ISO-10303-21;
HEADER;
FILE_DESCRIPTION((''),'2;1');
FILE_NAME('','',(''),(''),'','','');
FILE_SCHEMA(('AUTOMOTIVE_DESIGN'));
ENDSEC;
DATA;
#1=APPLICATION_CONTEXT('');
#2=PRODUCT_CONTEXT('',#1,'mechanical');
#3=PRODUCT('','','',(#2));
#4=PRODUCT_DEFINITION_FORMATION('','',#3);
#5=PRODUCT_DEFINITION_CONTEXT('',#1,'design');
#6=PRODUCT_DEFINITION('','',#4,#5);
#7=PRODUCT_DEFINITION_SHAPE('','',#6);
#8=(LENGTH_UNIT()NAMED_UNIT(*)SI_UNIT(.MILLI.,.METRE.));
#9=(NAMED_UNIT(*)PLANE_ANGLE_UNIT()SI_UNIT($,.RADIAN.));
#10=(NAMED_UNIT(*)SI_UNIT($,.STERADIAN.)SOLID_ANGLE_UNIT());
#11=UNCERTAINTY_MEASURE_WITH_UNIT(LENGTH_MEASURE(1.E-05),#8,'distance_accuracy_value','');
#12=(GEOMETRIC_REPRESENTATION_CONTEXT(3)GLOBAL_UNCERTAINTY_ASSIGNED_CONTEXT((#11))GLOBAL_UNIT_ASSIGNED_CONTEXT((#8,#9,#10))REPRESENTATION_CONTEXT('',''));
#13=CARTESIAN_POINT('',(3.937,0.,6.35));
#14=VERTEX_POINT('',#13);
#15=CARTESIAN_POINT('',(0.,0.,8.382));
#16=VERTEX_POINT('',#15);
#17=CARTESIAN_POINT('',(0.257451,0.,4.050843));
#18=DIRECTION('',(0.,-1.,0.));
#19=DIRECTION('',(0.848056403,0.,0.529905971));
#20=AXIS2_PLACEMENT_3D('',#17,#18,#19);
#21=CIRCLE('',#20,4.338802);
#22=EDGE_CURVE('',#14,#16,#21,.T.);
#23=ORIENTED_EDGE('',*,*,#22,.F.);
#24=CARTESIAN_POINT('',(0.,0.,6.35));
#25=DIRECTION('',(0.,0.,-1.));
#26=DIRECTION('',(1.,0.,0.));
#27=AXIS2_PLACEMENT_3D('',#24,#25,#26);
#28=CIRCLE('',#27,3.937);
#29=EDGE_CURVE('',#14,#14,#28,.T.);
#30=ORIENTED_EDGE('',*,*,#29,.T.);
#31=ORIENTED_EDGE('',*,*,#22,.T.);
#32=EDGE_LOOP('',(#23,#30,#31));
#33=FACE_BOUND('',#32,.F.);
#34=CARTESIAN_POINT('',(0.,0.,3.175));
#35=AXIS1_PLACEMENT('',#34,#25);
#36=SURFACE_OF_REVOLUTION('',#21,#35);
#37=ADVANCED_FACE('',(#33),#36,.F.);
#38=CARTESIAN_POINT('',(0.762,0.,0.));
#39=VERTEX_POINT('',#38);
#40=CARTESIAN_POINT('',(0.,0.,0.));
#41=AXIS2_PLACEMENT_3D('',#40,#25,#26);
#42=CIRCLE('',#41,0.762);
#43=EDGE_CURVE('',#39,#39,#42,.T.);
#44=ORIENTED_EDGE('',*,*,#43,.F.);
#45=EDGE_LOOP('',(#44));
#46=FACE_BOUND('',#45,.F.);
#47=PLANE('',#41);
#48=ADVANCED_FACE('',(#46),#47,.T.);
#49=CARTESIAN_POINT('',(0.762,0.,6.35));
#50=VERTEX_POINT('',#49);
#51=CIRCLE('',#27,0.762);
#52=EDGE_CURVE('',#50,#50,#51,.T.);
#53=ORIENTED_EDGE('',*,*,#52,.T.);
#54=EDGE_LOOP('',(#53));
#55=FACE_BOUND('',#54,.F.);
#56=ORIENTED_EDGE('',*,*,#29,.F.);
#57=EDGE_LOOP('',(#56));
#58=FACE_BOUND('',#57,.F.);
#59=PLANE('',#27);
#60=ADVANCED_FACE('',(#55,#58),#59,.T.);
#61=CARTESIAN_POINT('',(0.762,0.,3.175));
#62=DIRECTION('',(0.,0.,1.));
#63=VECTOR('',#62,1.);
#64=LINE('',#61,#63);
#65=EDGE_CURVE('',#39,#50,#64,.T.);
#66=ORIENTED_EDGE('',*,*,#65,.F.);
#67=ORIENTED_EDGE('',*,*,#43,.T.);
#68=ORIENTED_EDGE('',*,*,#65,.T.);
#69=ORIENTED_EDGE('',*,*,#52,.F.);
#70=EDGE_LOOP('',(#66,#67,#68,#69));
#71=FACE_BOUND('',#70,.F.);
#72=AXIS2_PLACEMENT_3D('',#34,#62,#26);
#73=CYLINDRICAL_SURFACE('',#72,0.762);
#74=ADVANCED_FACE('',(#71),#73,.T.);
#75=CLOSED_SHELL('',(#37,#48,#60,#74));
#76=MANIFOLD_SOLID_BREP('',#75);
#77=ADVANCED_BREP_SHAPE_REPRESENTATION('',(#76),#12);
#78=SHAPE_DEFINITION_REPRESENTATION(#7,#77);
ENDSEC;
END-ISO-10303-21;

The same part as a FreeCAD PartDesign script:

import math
import FreeCAD as App
import Part
import Sketcher
from FreeCAD import Vector
Q = App.Units.Quantity

doc = App.newDocument("Part")
params = doc.addObject("Spreadsheet::Sheet", "Params")
for row, (alias, value) in enumerate([
    ("sketch1_width", "0.03 in"),
    ("sketch1_height", "0.25 in"),
    ("sketch1_height2", "0.33 in"),
    ("sketch1_width2", "0.125 in"),
    ("revolution_angle", "360 deg"),
], start=1):
    params.set(f"A{row}", alias)
    params.set(f"B{row}", "=" + value)
    params.setAlias(f"B{row}", alias)

body = doc.addObject("PartDesign::Body", "Body")

# Sketch on XZ plane
sketch1 = doc.addObject("Sketcher::SketchObject", "Sketch")
body.addObject(sketch1)
sketch1.AttachmentSupport = (doc.XZ_Plane, [""])
sketch1.MapMode = "FlatFace"
sketch1.addGeometry(Part.LineSegment(Vector(0, 0, 0), Vector(0.8, 0, 0)), False)
sketch1.addGeometry(Part.LineSegment(Vector(0.8, 0, 0), Vector(0.8, 6.3, 0)), False)
sketch1.addGeometry(Part.LineSegment(Vector(0.8, 6.3, 0), Vector(3.9, 6.3, 0)), False)
sketch1.addGeometry(Part.ArcOfCircle(Part.Circle(Vector(0.3, 4.1, 0), Vector(0, 0, 1), 4.3), math.radians(32), math.radians(93)), False)
sketch1.addGeometry(Part.LineSegment(Vector(0, 8.4, 0), Vector(0, 0, 0)), False)
sketch1.addConstraint(Sketcher.Constraint("Coincident", 0, 2, 1, 1))
sketch1.addConstraint(Sketcher.Constraint("Coincident", 1, 2, 2, 1))
sketch1.addConstraint(Sketcher.Constraint("Coincident", 2, 2, 3, 1))
sketch1.addConstraint(Sketcher.Constraint("Coincident", 3, 2, 4, 1))
sketch1.addConstraint(Sketcher.Constraint("Coincident", 4, 2, 0, 1))
sketch1.addConstraint(Sketcher.Constraint("Horizontal", 0))
sketch1.addConstraint(Sketcher.Constraint("Vertical", 1))
sketch1.addConstraint(Sketcher.Constraint("Horizontal", 2))
sketch1.addConstraint(Sketcher.Constraint("Vertical", 4))
sketch1.addConstraint(Sketcher.Constraint("Coincident", 4, 2, -1, 1))
sketch1.addConstraint(Sketcher.Constraint("DistanceX", 0, 1, 0, 2, Q("0.03 in")))
sketch1.addConstraint(Sketcher.Constraint("DistanceY", 1, 1, 1, 2, Q("0.25 in")))
sketch1.addConstraint(Sketcher.Constraint("DistanceY", 4, 2, 4, 1, Q("0.33 in")))
sketch1.addConstraint(Sketcher.Constraint("DistanceX", 2, 1, 2, 2, Q("0.125 in")))
sketch1.addConstraint(Sketcher.Constraint("Radius", 3, 4.338802))
sketch1.setExpression("Constraints[10]", "Params.sketch1_width")
sketch1.setExpression("Constraints[11]", "Params.sketch1_height")
sketch1.setExpression("Constraints[12]", "Params.sketch1_height2")
sketch1.setExpression("Constraints[13]", "Params.sketch1_width2")
revolution = doc.addObject("PartDesign::Revolution", "Revolution")
body.addObject(revolution)
revolution.Profile = sketch1
revolution.ReferenceAxis = (sketch1, ["V_Axis"])
revolution.setExpression("Angle", "Params.revolution_angle")

doc.recompute()
